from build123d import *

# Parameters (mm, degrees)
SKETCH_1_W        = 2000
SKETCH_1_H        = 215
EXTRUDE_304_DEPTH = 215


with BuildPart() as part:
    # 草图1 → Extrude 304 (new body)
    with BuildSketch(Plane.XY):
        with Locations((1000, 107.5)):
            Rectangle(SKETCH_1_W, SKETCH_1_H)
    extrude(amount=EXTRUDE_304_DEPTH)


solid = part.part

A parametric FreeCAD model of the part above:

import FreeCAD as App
import Part
import Sketcher

V = App.Vector
Q = App.Units.Quantity

doc = App.newDocument("Part")
body = doc.addObject("PartDesign::Body", "Body")

# Sketch on XY plane
sketch1 = body.newObject("Sketcher::SketchObject", "Sketch")
sketch1.AttachmentSupport = (doc.getObject("XY_Plane"), [""])
sketch1.MapMode = "FlatFace"
sketch1.addGeometry(Part.LineSegment(V(0, 215, 0), V(0, 0, 0)), False)
sketch1.addGeometry(Part.LineSegment(V(0, 0, 0), V(2000, 0, 0)), False)
sketch1.addGeometry(Part.LineSegment(V(2000, 0, 0), V(2000, 215, 0)), False)
sketch1.addGeometry(Part.LineSegment(V(2000, 215, 0), V(0, 215, 0)), False)
sketch1.addConstraint(Sketcher.Constraint("Coincident", 0, 2, 1, 1))
sketch1.addConstraint(Sketcher.Constraint("Coincident", 1, 2, 2, 1))
sketch1.addConstraint(Sketcher.Constraint("Coincident", 2, 2, 3, 1))
sketch1.addConstraint(Sketcher.Constraint("Coincident", 3, 2, 0, 1))
sketch1.addConstraint(Sketcher.Constraint("Vertical", 0))
sketch1.addConstraint(Sketcher.Constraint("Horizontal", 1))
sketch1.addConstraint(Sketcher.Constraint("Vertical", 2))
sketch1.addConstraint(Sketcher.Constraint("Horizontal", 3))
sketch1.addConstraint(Sketcher.Constraint("Coincident", 0, 2, -1, 1))
sketch1.addConstraint(Sketcher.Constraint("DistanceX", 1, 1, 1, 2, Q("2000 mm")))
sketch1.addConstraint(Sketcher.Constraint("DistanceY", 0, 2, 0, 1, Q("215 mm")))
pad1 = body.newObject("PartDesign::Pad", "Pad")
pad1.Profile = sketch1
pad1.Length = 215

doc.recompute()
